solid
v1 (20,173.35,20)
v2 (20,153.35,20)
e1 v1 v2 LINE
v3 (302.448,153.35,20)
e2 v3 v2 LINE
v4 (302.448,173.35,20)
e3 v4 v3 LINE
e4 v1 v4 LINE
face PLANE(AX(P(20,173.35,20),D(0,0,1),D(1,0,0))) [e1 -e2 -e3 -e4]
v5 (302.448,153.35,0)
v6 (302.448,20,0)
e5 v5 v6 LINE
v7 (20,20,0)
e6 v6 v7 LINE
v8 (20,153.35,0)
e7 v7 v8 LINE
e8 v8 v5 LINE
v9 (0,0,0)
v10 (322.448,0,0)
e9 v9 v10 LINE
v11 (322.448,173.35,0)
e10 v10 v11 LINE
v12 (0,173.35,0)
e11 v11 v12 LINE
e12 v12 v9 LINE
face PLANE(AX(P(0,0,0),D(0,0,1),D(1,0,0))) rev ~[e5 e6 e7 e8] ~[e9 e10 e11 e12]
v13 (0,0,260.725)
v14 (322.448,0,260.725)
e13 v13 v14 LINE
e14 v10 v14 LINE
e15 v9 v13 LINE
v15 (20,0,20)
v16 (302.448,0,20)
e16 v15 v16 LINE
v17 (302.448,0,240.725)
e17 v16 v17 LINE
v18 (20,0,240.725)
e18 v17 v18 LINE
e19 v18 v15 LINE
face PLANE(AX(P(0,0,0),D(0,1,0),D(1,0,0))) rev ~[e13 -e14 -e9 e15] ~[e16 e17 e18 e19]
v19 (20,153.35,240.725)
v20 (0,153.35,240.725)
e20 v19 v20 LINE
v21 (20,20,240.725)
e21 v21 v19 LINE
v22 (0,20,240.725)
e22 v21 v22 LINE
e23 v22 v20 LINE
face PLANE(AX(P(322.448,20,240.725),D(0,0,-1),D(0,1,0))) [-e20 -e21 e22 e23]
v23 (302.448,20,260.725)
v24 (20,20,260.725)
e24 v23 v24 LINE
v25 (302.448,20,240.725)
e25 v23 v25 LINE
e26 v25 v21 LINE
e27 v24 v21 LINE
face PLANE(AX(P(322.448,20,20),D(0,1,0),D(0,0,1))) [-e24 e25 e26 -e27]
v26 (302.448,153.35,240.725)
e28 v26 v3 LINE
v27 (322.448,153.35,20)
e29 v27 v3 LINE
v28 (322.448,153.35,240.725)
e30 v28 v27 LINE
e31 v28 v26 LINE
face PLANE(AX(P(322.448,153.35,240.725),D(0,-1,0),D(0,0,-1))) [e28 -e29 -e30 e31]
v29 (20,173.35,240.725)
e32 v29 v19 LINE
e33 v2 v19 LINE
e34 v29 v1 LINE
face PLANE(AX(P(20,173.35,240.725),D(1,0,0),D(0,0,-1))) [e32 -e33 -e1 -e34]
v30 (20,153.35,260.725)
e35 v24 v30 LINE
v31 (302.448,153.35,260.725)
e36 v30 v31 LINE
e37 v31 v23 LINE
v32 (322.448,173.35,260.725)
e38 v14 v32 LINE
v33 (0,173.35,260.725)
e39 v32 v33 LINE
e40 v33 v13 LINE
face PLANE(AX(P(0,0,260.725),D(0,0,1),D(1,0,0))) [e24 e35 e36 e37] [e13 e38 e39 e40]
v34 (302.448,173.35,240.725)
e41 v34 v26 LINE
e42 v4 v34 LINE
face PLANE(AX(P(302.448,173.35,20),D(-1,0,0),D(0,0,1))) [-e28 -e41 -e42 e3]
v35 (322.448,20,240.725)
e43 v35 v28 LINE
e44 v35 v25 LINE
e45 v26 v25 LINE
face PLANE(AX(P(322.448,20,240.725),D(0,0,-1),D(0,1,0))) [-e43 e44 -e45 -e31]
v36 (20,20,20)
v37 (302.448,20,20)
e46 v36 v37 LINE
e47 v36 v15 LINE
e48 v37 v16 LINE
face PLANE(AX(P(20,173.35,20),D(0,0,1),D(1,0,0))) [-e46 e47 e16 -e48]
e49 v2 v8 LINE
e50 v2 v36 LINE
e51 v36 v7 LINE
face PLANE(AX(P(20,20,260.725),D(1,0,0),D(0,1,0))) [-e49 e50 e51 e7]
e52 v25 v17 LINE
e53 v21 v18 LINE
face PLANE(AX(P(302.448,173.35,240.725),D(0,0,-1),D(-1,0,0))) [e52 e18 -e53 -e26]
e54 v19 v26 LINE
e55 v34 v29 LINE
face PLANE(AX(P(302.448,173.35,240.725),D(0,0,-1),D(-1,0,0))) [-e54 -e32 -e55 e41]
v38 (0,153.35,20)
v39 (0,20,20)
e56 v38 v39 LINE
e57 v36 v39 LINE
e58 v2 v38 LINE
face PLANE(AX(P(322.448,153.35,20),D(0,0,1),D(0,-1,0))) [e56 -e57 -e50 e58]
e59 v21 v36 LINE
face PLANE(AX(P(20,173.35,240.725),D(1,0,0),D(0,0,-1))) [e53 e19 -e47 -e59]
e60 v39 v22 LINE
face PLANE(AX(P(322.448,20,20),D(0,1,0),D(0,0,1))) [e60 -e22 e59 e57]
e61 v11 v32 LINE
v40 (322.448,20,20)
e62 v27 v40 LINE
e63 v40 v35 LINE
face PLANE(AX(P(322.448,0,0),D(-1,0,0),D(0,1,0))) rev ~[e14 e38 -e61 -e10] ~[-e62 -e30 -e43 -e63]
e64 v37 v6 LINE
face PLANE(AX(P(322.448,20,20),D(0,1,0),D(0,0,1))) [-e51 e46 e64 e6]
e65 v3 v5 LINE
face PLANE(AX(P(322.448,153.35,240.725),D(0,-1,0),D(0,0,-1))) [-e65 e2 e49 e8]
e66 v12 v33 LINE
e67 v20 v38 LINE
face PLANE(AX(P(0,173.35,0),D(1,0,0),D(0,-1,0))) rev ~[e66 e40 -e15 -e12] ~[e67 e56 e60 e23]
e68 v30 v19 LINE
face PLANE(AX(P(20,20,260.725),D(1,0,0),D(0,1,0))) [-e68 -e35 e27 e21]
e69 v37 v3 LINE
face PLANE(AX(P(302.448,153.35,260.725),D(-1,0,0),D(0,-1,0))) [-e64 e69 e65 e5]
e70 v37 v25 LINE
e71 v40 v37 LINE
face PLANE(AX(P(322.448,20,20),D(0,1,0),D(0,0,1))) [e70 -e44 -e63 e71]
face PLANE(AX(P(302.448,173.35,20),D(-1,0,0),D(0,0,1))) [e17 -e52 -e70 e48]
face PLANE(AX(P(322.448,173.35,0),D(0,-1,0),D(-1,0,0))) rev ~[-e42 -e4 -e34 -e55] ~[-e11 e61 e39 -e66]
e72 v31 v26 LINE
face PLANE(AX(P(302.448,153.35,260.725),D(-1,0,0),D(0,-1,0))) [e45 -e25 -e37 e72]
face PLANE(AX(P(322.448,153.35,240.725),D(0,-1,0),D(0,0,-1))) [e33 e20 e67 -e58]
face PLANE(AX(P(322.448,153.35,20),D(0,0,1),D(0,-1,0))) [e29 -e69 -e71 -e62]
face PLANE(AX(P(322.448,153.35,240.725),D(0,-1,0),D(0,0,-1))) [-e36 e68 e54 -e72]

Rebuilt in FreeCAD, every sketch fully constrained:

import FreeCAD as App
import Part
import Sketcher
from FreeCAD import Vector
Q = App.Units.Quantity

doc = App.newDocument("Part")
body = doc.addObject("PartDesign::Body", "Body")

sketch1 = body.newObject("Sketcher::SketchObject", "Sketch")
sketch1.AttachmentSupport = (doc.getObject("XY_Plane"), [""])
sketch1.MapMode = "FlatFace"
sketch1.addGeometry([
    Part.LineSegment(Vector(0, 173.35, 0), Vector(0, 0, 0)),
    Part.LineSegment(Vector(0, 0, 0), Vector(322.448, 0, 0)),
    Part.LineSegment(Vector(322.448, 0, 0), Vector(322.448, 173.35, 0)),
    Part.LineSegment(Vector(322.448, 173.35, 0), Vector(0, 173.35, 0)),
], False)
sketch1.addConstraint([
    Sketcher.Constraint("Coincident", 0, 2, 1, 1),
    Sketcher.Constraint("Coincident", 1, 2, 2, 1),
    Sketcher.Constraint("Coincident", 2, 2, 3, 1),
    Sketcher.Constraint("Coincident", 3, 2, 0, 1),
    Sketcher.Constraint("Vertical", 0),
    Sketcher.Constraint("Horizontal", 1),
    Sketcher.Constraint("Vertical", 2),
    Sketcher.Constraint("Horizontal", 3),
    Sketcher.Constraint("Coincident", 0, 2, -1, 1),
    Sketcher.Constraint("DistanceX", 1, 1, 1, 2, Q("12.6948 in")),
    Sketcher.Constraint("DistanceY", 0, 2, 0, 1, Q("6.8248 in")),
])
pad1 = body.newObject("PartDesign::Pad", "Pad")
pad1.Profile = sketch1
pad1.Length = 260.725

sketch2 = body.newObject("Sketcher::SketchObject", "Sketch001")
sketch2.AttachmentSupport = (doc.getObject("XY_Plane"), [""])
sketch2.MapMode = "FlatFace"
sketch2.AttachmentOffset = App.Placement(Vector(0, 0, 260.725), App.Rotation())
sketch2.addGeometry([
    Part.LineSegment(Vector(302.448, 153.35, 0), Vector(20, 153.35, 0)),
    Part.LineSegment(Vector(20, 153.35, 0), Vector(20, 20, 0)),
    Part.LineSegment(Vector(20, 20, 0), Vector(302.448, 20, 0)),
    Part.LineSegment(Vector(302.448, 20, 0), Vector(302.448, 153.35, 0)),
], False)
sketch2.addConstraint([
    Sketcher.Constraint("Coincident", 0, 2, 1, 1),
    Sketcher.Constraint("Coincident", 1, 2, 2, 1),
    Sketcher.Constraint("Coincident", 2, 2, 3, 1),
    Sketcher.Constraint("Coincident", 3, 2, 0, 1),
    Sketcher.Constraint("Horizontal", 0),
    Sketcher.Constraint("Vertical", 1),
    Sketcher.Constraint("Horizontal", 2),
    Sketcher.Constraint("Vertical", 3),
    Sketcher.Constraint("DistanceX", 0, 2, 0, 1, Q("11.12 in")),
    Sketcher.Constraint("DistanceY", 1, 2, 1, 1, Q("5.25 in")),
    Sketcher.Constraint("DistanceX", -1, 1, 0, 2, Q("0.7874 in")),
    Sketcher.Constraint("DistanceY", -1, 1, 1, 2, Q("0.7874 in")),
])
pocket1 = body.newObject("PartDesign::Pocket", "Pocket")
pocket1.Profile = sketch2
pocket1.Length = 900

sketch3 = body.newObject("Sketcher::SketchObject", "Sketch002")
sketch3.AttachmentSupport = (doc.getObject("YZ_Plane"), [""])
sketch3.MapMode = "FlatFace"
sketch3.AttachmentOffset = App.Placement(Vector(0, 0, 12.6948031 * 25.4), App.Rotation())
sketch3.addGeometry([
    Part.LineSegment(Vector(153.35, 20, 0), Vector(153.35, 240.725, 0)),
    Part.LineSegment(Vector(153.35, 240.725, 0), Vector(20, 240.725, 0)),
    Part.LineSegment(Vector(20, 240.725, 0), Vector(20, 20, 0)),
    Part.LineSegment(Vector(20, 20, 0), Vector(153.35, 20, 0)),
], False)
sketch3.addConstraint([
    Sketcher.Constraint("Coincident", 0, 2, 1, 1),
    Sketcher.Constraint("Coincident", 1, 2, 2, 1),
    Sketcher.Constraint("Coincident", 2, 2, 3, 1),
    Sketcher.Constraint("Coincident", 3, 2, 0, 1),
    Sketcher.Constraint("Vertical", 0),
    Sketcher.Constraint("Horizontal", 1),
    Sketcher.Constraint("Vertical", 2),
    Sketcher.Constraint("Horizontal", 3),
    Sketcher.Constraint("DistanceX", 1, 2, 1, 1, Q("5.25 in")),
    Sketcher.Constraint("DistanceX", -1, 1, 1, 2, Q("0.7874 in")),
    Sketcher.Constraint("DistanceY", -1, 1, 2, 2, Q("0.7874 in")),
    Sketcher.Constraint("DistanceY", 0, 1, 0, 2, 220.725),
])
pocket2 = body.newObject("PartDesign::Pocket", "Pocket001")
pocket2.Profile = sketch3
pocket2.Length = 900

sketch4 = body.newObject("Sketcher::SketchObject", "Sketch003")
sketch4.AttachmentSupport = (doc.getObject("XZ_Plane"), [""])
sketch4.MapMode = "FlatFace"
sketch4.AttachmentOffset = App.Placement(Vector(0, 0, -6.8248031 * 25.4), App.Rotation())
sketch4.addGeometry([
    Part.LineSegment(Vector(302.448, 20, 0), Vector(20, 20, 0)),
    Part.LineSegment(Vector(20, 20, 0), Vector(20, 240.725, 0)),
    Part.LineSegment(Vector(20, 240.725, 0), Vector(302.448, 240.725, 0)),
    Part.LineSegment(Vector(302.448, 240.725, 0), Vector(302.448, 20, 0)),
], False)
sketch4.addConstraint([
    Sketcher.Constraint("Coincident", 0, 2, 1, 1),
    Sketcher.Constraint("Coincident", 1, 2, 2, 1),
    Sketcher.Constraint("Coincident", 2, 2, 3, 1),
    Sketcher.Constraint("Coincident", 3, 2, 0, 1),
    Sketcher.Constraint("Horizontal", 0),
    Sketcher.Constraint("Vertical", 1),
    Sketcher.Constraint("Horizontal", 2),
    Sketcher.Constraint("Vertical", 3),
    Sketcher.Constraint("DistanceX", 0, 2, 0, 1, Q("11.12 in")),
    Sketcher.Constraint("DistanceX", -1, 1, 0, 2, Q("0.7874 in")),
    Sketcher.Constraint("DistanceY", -1, 1, 0, 2, Q("0.7874 in")),
    Sketcher.Constraint("DistanceY", 1, 1, 1, 2, 220.725),
])
pocket3 = body.newObject("PartDesign::Pocket", "Pocket002")
pocket3.Profile = sketch4
pocket3.Length = 900
pocket3.Reversed = True

doc.recompute()
